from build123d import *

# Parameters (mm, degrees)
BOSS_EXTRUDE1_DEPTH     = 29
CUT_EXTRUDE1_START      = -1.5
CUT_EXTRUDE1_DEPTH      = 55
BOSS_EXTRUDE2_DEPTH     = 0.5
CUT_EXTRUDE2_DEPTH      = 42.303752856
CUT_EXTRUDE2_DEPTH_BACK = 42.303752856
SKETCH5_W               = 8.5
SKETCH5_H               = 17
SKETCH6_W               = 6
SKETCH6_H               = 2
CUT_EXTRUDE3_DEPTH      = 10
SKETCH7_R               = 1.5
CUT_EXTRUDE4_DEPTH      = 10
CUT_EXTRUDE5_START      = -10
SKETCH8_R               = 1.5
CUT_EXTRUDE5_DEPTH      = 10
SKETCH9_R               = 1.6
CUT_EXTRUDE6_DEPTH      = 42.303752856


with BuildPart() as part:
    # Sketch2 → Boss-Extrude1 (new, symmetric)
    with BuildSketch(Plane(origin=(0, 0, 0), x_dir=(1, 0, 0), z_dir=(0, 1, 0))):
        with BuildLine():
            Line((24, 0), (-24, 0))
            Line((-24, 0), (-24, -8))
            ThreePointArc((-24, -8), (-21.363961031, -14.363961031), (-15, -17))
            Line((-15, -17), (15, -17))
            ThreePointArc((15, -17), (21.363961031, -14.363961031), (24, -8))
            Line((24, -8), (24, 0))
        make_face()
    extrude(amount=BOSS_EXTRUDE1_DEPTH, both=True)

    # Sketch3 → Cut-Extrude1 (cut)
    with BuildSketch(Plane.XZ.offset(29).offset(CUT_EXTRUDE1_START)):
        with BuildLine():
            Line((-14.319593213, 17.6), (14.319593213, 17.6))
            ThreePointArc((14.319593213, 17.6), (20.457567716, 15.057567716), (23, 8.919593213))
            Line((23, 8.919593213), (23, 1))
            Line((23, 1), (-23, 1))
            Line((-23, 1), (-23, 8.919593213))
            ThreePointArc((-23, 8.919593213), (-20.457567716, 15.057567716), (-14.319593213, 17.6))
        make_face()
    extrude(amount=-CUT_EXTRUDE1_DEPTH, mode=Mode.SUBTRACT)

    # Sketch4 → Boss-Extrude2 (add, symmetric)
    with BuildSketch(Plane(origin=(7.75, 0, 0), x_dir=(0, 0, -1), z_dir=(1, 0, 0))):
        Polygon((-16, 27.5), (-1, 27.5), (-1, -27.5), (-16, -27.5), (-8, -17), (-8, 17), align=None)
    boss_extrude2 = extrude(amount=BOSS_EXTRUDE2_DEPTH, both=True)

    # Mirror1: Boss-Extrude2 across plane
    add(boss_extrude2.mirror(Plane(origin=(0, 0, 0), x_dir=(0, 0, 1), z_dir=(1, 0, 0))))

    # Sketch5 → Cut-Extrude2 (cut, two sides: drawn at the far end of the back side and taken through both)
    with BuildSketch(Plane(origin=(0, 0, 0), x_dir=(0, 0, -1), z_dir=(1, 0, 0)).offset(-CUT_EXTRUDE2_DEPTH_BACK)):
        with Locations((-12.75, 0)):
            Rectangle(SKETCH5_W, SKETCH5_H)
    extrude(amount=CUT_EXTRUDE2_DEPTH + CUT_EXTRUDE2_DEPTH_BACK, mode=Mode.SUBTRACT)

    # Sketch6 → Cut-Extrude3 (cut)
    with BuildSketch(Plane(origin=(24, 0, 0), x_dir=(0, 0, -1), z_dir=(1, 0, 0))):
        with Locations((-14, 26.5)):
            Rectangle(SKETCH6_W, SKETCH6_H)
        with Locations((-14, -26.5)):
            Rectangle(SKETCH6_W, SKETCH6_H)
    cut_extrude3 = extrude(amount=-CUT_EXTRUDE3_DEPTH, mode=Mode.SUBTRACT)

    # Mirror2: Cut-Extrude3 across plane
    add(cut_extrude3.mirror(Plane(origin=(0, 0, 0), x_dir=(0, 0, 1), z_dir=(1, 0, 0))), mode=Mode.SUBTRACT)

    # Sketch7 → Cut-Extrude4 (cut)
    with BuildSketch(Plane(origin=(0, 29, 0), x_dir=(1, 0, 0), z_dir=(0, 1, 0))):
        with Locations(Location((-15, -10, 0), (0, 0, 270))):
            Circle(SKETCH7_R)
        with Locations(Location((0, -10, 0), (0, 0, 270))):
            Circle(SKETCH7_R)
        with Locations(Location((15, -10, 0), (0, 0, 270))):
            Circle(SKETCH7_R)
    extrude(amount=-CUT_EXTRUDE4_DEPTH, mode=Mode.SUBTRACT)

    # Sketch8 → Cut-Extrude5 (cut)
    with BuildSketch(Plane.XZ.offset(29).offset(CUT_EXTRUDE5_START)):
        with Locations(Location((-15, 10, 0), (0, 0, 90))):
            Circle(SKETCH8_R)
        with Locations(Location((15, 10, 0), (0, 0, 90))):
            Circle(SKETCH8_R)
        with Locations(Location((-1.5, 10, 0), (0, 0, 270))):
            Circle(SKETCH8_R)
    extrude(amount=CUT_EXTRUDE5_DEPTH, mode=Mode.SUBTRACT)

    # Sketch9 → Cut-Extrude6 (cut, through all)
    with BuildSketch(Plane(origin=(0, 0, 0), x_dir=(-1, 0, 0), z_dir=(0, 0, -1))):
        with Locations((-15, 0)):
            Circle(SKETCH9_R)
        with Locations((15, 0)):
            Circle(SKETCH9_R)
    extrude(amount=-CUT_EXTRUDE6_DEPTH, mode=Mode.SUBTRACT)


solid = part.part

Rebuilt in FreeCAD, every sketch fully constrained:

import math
import FreeCAD as App
import Part
import Sketcher
Q = App.Units.Quantity

doc = App.newDocument("Part")
body = doc.addObject("PartDesign::Body", "Body")

# Sketch on XZ plane
sketch1 = body.newObject("Sketcher::SketchObject", "Sketch")
sketch1.AttachmentSupport = (doc.getObject("XZ_Plane"), [""])
sketch1.MapMode = "FlatFace"
sketch1.addGeometry([
    Part.LineSegment(App.Vector(24, 0, 0), App.Vector(-24, 0, 0)),  # 0
    Part.LineSegment(App.Vector(-24, 0, 0), App.Vector(-24, 8, 0)),  # 1
    Part.ArcOfCircle(Part.Circle(App.Vector(-15, 8, 0), App.Vector(0, 0, 1), 9), math.radians(90), math.radians(180)),  # 2
    Part.LineSegment(App.Vector(-15, 17, 0), App.Vector(15, 17, 0)),  # 3
    Part.ArcOfCircle(Part.Circle(App.Vector(15, 8, 0), App.Vector(0, 0, 1), 9), math.radians(0), math.radians(90)),  # 4
    Part.LineSegment(App.Vector(24, 8, 0), App.Vector(24, 0, 0)),  # 5
], False)
sketch1.addConstraint([
    Sketcher.Constraint("Coincident", 0, 2, 1, 1),
    Sketcher.Constraint("Tangent", 1, 2, 2, 2),
    Sketcher.Constraint("Tangent", 2, 1, 3, 1),
    Sketcher.Constraint("Tangent", 3, 2, 4, 2),
    Sketcher.Constraint("Tangent", 4, 1, 5, 1),
    Sketcher.Constraint("Coincident", 5, 2, 0, 1),
    Sketcher.Constraint("Horizontal", 0),
    Sketcher.Constraint("Vertical", 1),
    Sketcher.Constraint("Horizontal", 3),
    Sketcher.Constraint("Vertical", 5),
    Sketcher.Constraint("Equal", 2, 4),
    Sketcher.Constraint("Symmetric", 0, 2, 5, 2, -1, 1),
    Sketcher.Constraint("Radius", 2, Q("9 mm")),
    Sketcher.Constraint("DistanceX", 0, 2, 0, 1, Q("48 mm")),
    Sketcher.Constraint("DistanceY", 1, 1, 1, 2, Q("8 mm")),
])
pad1 = body.newObject("PartDesign::Pad", "Pad")
pad1.Profile = sketch1
pad1.Length = 58
pad1.Midplane = True

# Sketch on XZ plane
sketch2 = body.newObject("Sketcher::SketchObject", "Sketch001")
sketch2.AttachmentSupport = (doc.getObject("XZ_Plane"), [""])
sketch2.MapMode = "FlatFace"
sketch2.AttachmentOffset = App.Placement(App.Vector(0, 0, 27.5), App.Rotation())
sketch2.addGeometry([
    Part.LineSegment(App.Vector(14, 18, 0), App.Vector(-14, 18, 0)),  # 0
    Part.ArcOfCircle(Part.Circle(App.Vector(-14, 9, 0), App.Vector(0, 0, 1), 9), math.radians(90), math.radians(180)),  # 1
    Part.LineSegment(App.Vector(-23, 9, 0), App.Vector(-23, 1, 0)),  # 2
    Part.LineSegment(App.Vector(-23, 1, 0), App.Vector(23, 1, 0)),  # 3
    Part.LineSegment(App.Vector(23, 1, 0), App.Vector(23, 9, 0)),  # 4
    Part.ArcOfCircle(Part.Circle(App.Vector(14, 9, 0), App.Vector(0, 0, 1), 9), math.radians(0), math.radians(90)),  # 5
], False)
sketch2.addConstraint([
    Sketcher.Constraint("Tangent", 0, 2, 1, 1),
    Sketcher.Constraint("Tangent", 1, 2, 2, 1),
    Sketcher.Constraint("Coincident", 2, 2, 3, 1),
    Sketcher.Constraint("Coincident", 3, 2, 4, 1),
    Sketcher.Constraint("Tangent", 4, 2, 5, 1),
    Sketcher.Constraint("Tangent", 5, 2, 0, 1),
    Sketcher.Constraint("Horizontal", 0),
    Sketcher.Constraint("Vertical", 2),
    Sketcher.Constraint("Horizontal", 3),
    Sketcher.Constraint("Vertical", 4),
    Sketcher.Constraint("Equal", 1, 5),
    Sketcher.Constraint("DistanceX", 3, 1, 3, 2, Q("46 mm")),
    Sketcher.Constraint("DistanceX", 1, 2, -1, 1, Q("23 mm")),
    Sketcher.Constraint("DistanceY", -1, 1, 2, 2, Q("1 mm")),
    Sketcher.Constraint("DistanceY", -1, 1, 0, 2, Q("17.6 mm")),
    Sketcher.Constraint("Radius", 1, Q("8.680407 mm")),
])
pocket1 = body.newObject("PartDesign::Pocket", "Pocket")
pocket1.Profile = sketch2
pocket1.Length = 55

# Sketch on YZ plane
sketch3 = body.newObject("Sketcher::SketchObject", "Sketch002")
sketch3.AttachmentSupport = (doc.getObject("YZ_Plane"), [""])
sketch3.MapMode = "FlatFace"
sketch3.AttachmentOffset = App.Placement(App.Vector(0, 0, 7.75), App.Rotation())
sketch3.addGeometry([
    Part.LineSegment(App.Vector(28, 1, 0), App.Vector(28, 16, 0)),  # 0
    Part.LineSegment(App.Vector(28, 16, 0), App.Vector(17, 8, 0)),  # 1
    Part.LineSegment(App.Vector(17, 8, 0), App.Vector(-17, 8, 0)),  # 2
    Part.LineSegment(App.Vector(-17, 8, 0), App.Vector(-28, 16, 0)),  # 3
    Part.LineSegment(App.Vector(-28, 16, 0), App.Vector(-28, 1, 0)),  # 4
    Part.LineSegment(App.Vector(-28, 1, 0), App.Vector(28, 1, 0)),  # 5
], False)
sketch3.addConstraint([
    Sketcher.Constraint("Coincident", 0, 2, 1, 1),
    Sketcher.Constraint("Coincident", 1, 2, 2, 1),
    Sketcher.Constraint("Coincident", 2, 2, 3, 1),
    Sketcher.Constraint("Coincident", 3, 2, 4, 1),
    Sketcher.Constraint("Coincident", 4, 2, 5, 1),
    Sketcher.Constraint("Coincident", 5, 2, 0, 1),
    Sketcher.Constraint("Vertical", 0),
    Sketcher.Constraint("Horizontal", 2),
    Sketcher.Constraint("Vertical", 4),
    Sketcher.Constraint("Horizontal", 5),
    Sketcher.Constraint("Symmetric", 0, 2, 3, 2, -2),
    Sketcher.Constraint("Equal", 1, 3),
    Sketcher.Constraint("DistanceX", 2, 2, 2, 1, Q("34 mm")),
    Sketcher.Constraint("DistanceX", 5, 1, 5, 2, Q("55 mm")),
    Sketcher.Constraint("DistanceY", 0, 1, 0, 2, Q("15 mm")),
    Sketcher.Constraint("DistanceY", -1, 1, 0, 2, Q("16 mm")),
    Sketcher.Constraint("DistanceY", -1, 1, 1, 2, Q("8 mm")),
])
pad2 = body.newObject("PartDesign::Pad", "Pad001")
pad2.Profile = sketch3
pad2.Length = 1
pad2.Midplane = True
doc.recompute()

mirrored = body.newObject("PartDesign::Mirrored", "Mirrored")
mirrored.Originals = [pad2]
mirrored.MirrorPlane = (doc.getObject("YZ_Plane"), [""])
body.Tip = mirrored

# Sketch on YZ plane
sketch4 = body.newObject("Sketcher::SketchObject", "Sketch003")
sketch4.AttachmentSupport = (doc.getObject("YZ_Plane"), [""])
sketch4.MapMode = "FlatFace"
sketch4.addGeometry([
    Part.LineSegment(App.Vector(8, 17, 0), App.Vector(-8, 17, 0)),
    Part.LineSegment(App.Vector(-8, 17, 0), App.Vector(-8, 8, 0)),
    Part.LineSegment(App.Vector(-8, 8, 0), App.Vector(8, 8, 0)),
    Part.LineSegment(App.Vector(8, 8, 0), App.Vector(8, 17, 0)),
], False)
sketch4.addConstraint([
    Sketcher.Constraint("Coincident", 0, 2, 1, 1),
    Sketcher.Constraint("Coincident", 1, 2, 2, 1),
    Sketcher.Constraint("Coincident", 2, 2, 3, 1),
    Sketcher.Constraint("Coincident", 3, 2, 0, 1),
    Sketcher.Constraint("Horizontal", 0),
    Sketcher.Constraint("Vertical", 1),
    Sketcher.Constraint("Horizontal", 2),
    Sketcher.Constraint("Vertical", 3),
    Sketcher.Constraint("DistanceX", 0, 2, 0, 1, Q("17 mm")),
    Sketcher.Constraint("DistanceY", 1, 2, 1, 1, Q("8.5 mm")),
    Sketcher.Constraint("DistanceY", -1, 1, 0, 2, Q("17 mm")),
    Sketcher.Constraint("DistanceX", 0, 2, -1, 1, Q("8.5 mm")),
])
pocket2 = body.newObject("PartDesign::Pocket", "Pocket001")
pocket2.Profile = sketch4
pocket2.Type = "ThroughAll"
pocket2.Midplane = True

# Sketch on YZ plane
sketch5 = body.newObject("Sketcher::SketchObject", "Sketch004")
sketch5.AttachmentSupport = (doc.getObject("YZ_Plane"), [""])
sketch5.MapMode = "FlatFace"
sketch5.AttachmentOffset = App.Placement(App.Vector(0, 0, 24), App.Rotation())
sketch5.addGeometry([
    Part.LineSegment(App.Vector(27.5, 17, 0), App.Vector(25.5, 17, 0)),  # 0
    Part.LineSegment(App.Vector(25.5, 17, 0), App.Vector(25.5, 11, 0)),  # 1
    Part.LineSegment(App.Vector(25.5, 11, 0), App.Vector(27.5, 11, 0)),  # 2
    Part.LineSegment(App.Vector(27.5, 11, 0), App.Vector(27.5, 17, 0)),  # 3
    Part.LineSegment(App.Vector(-25.5, 17, 0), App.Vector(-27.5, 17, 0)),  # 4
    Part.LineSegment(App.Vector(-27.5, 17, 0), App.Vector(-27.5, 11, 0)),  # 5
    Part.LineSegment(App.Vector(-27.5, 11, 0), App.Vector(-25.5, 11, 0)),  # 6
    Part.LineSegment(App.Vector(-25.5, 11, 0), App.Vector(-25.5, 17, 0)),  # 7
], False)
sketch5.addConstraint([
    Sketcher.Constraint("Coincident", 0, 2, 1, 1),
    Sketcher.Constraint("Coincident", 1, 2, 2, 1),
    Sketcher.Constraint("Coincident", 2, 2, 3, 1),
    Sketcher.Constraint("Coincident", 3, 2, 0, 1),
    Sketcher.Constraint("Coincident", 4, 2, 5, 1),
    Sketcher.Constraint("Coincident", 5, 2, 6, 1),
    Sketcher.Constraint("Coincident", 6, 2, 7, 1),
    Sketcher.Constraint("Coincident", 7, 2, 4, 1),
    Sketcher.Constraint("Horizontal", 0),
    Sketcher.Constraint("Vertical", 1),
    Sketcher.Constraint("Horizontal", 2),
    Sketcher.Constraint("Vertical", 3),
    Sketcher.Constraint("Horizontal", 4),
    Sketcher.Constraint("Vertical", 5),
    Sketcher.Constraint("Horizontal", 6),
    Sketcher.Constraint("Vertical", 7),
    Sketcher.Constraint("Symmetric", 3, 2, 4, 2, -2),
    Sketcher.Constraint("Symmetric", 1, 2, 6, 2, -2),
    Sketcher.Constraint("DistanceX", 0, 2, 0, 1, Q("2 mm")),
    Sketcher.Constraint("DistanceY", 1, 2, 1, 1, Q("6 mm")),
    Sketcher.Constraint("DistanceY", -1, 1, 0, 2, Q("17 mm")),
    Sketcher.Constraint("DistanceX", 4, 2, 0, 2, Q("53 mm")),
])
pocket3 = body.newObject("PartDesign::Pocket", "Pocket002")
pocket3.Profile = sketch5
pocket3.Length = 10
doc.recompute()

mirrored2 = body.newObject("PartDesign::Mirrored", "Mirrored001")
mirrored2.Originals = [pocket3]
mirrored2.MirrorPlane = (doc.getObject("YZ_Plane"), [""])
body.Tip = mirrored2

# Sketch on XZ plane
sketch6 = body.newObject("Sketcher::SketchObject", "Sketch005")
sketch6.AttachmentSupport = (doc.getObject("XZ_Plane"), [""])
sketch6.MapMode = "FlatFace"
sketch6.AttachmentOffset = App.Placement(App.Vector(0, 0, -29), App.Rotation())
sketch6.addGeometry([
    Part.Circle(App.Vector(-15, 10, 0), App.Vector(0, 0, 1), 1.5),
    Part.Circle(App.Vector(0, 10, 0), App.Vector(0, 0, 1), 1.5),
    Part.Circle(App.Vector(15, 10, 0), App.Vector(0, 0, 1), 1.5),
], False)
sketch6.addConstraint([
    Sketcher.Constraint("Equal", 0, 1),
    Sketcher.Constraint("Equal", 1, 2),
    Sketcher.Constraint("Symmetric", 0, 3, 2, 3, -2),
    Sketcher.Constraint("PointOnObject", 1, 3, -2),
    Sketcher.Constraint("Horizontal", 0, 3, 1, 3),
    Sketcher.Constraint("Diameter", 0, Q("3 mm")),
    Sketcher.Constraint("DistanceX", 0, 3, -1, 1, Q("15 mm")),
    Sketcher.Constraint("DistanceY", -1, 1, 0, 3, Q("10 mm")),
])
pocket4 = body.newObject("PartDesign::Pocket", "Pocket003")
pocket4.Profile = sketch6
pocket4.Length = 10
pocket4.Reversed = True

# Sketch on XZ plane
sketch7 = body.newObject("Sketcher::SketchObject", "Sketch006")
sketch7.AttachmentSupport = (doc.getObject("XZ_Plane"), [""])
sketch7.MapMode = "FlatFace"
sketch7.AttachmentOffset = App.Placement(App.Vector(0, 0, 19), App.Rotation())
sketch7.addGeometry([
    Part.Circle(App.Vector(-15, 10, 0), App.Vector(0, 0, 1), 1.5),
    Part.Circle(App.Vector(15, 10, 0), App.Vector(0, 0, 1), 1.5),
    Part.Circle(App.Vector(-1.5, 10, 0), App.Vector(0, 0, 1), 1.5),
], False)
sketch7.addConstraint([
    Sketcher.Constraint("Equal", 0, 1),
    Sketcher.Constraint("Equal", 1, 2),
    Sketcher.Constraint("Symmetric", 0, 3, 1, 3, -2),
    Sketcher.Constraint("Horizontal", 1, 3, 2, 3),
    Sketcher.Constraint("Diameter", 0, Q("3 mm")),
    Sketcher.Constraint("DistanceX", 0, 3, -1, 1, Q("15 mm")),
    Sketcher.Constraint("DistanceY", -1, 1, 0, 3, Q("10 mm")),
    Sketcher.Constraint("DistanceX", 2, 3, -1, 1, Q("1.5 mm")),
])
pocket5 = body.newObject("PartDesign::Pocket", "Pocket004")
pocket5.Profile = sketch7
pocket5.Length = 10
pocket5.Reversed = True

# Sketch on XY plane
sketch8 = body.newObject("Sketcher::SketchObject", "Sketch007")
sketch8.AttachmentSupport = (doc.getObject("XY_Plane"), [""])
sketch8.MapMode = "FlatFace"
sketch8.addGeometry([
    Part.Circle(App.Vector(15, 0, 0), App.Vector(0, 0, 1), 1.6),
    Part.Circle(App.Vector(-15, 0, 0), App.Vector(0, 0, 1), 1.6),
], False)
sketch8.addConstraint([
    Sketcher.Constraint("Equal", 0, 1),
    Sketcher.Constraint("Symmetric", 0, 3, 1, 3, -1, 1),
    Sketcher.Constraint("PointOnObject", 0, 3, -1),
    Sketcher.Constraint("Diameter", 0, Q("3.2 mm")),
    Sketcher.Constraint("DistanceX", -1, 1, 0, 3, Q("15 mm")),
])
pocket6 = body.newObject("PartDesign::Pocket", "Pocket005")
pocket6.Profile = sketch8
pocket6.Type = "ThroughAll"
pocket6.Reversed = True

doc.recompute()
